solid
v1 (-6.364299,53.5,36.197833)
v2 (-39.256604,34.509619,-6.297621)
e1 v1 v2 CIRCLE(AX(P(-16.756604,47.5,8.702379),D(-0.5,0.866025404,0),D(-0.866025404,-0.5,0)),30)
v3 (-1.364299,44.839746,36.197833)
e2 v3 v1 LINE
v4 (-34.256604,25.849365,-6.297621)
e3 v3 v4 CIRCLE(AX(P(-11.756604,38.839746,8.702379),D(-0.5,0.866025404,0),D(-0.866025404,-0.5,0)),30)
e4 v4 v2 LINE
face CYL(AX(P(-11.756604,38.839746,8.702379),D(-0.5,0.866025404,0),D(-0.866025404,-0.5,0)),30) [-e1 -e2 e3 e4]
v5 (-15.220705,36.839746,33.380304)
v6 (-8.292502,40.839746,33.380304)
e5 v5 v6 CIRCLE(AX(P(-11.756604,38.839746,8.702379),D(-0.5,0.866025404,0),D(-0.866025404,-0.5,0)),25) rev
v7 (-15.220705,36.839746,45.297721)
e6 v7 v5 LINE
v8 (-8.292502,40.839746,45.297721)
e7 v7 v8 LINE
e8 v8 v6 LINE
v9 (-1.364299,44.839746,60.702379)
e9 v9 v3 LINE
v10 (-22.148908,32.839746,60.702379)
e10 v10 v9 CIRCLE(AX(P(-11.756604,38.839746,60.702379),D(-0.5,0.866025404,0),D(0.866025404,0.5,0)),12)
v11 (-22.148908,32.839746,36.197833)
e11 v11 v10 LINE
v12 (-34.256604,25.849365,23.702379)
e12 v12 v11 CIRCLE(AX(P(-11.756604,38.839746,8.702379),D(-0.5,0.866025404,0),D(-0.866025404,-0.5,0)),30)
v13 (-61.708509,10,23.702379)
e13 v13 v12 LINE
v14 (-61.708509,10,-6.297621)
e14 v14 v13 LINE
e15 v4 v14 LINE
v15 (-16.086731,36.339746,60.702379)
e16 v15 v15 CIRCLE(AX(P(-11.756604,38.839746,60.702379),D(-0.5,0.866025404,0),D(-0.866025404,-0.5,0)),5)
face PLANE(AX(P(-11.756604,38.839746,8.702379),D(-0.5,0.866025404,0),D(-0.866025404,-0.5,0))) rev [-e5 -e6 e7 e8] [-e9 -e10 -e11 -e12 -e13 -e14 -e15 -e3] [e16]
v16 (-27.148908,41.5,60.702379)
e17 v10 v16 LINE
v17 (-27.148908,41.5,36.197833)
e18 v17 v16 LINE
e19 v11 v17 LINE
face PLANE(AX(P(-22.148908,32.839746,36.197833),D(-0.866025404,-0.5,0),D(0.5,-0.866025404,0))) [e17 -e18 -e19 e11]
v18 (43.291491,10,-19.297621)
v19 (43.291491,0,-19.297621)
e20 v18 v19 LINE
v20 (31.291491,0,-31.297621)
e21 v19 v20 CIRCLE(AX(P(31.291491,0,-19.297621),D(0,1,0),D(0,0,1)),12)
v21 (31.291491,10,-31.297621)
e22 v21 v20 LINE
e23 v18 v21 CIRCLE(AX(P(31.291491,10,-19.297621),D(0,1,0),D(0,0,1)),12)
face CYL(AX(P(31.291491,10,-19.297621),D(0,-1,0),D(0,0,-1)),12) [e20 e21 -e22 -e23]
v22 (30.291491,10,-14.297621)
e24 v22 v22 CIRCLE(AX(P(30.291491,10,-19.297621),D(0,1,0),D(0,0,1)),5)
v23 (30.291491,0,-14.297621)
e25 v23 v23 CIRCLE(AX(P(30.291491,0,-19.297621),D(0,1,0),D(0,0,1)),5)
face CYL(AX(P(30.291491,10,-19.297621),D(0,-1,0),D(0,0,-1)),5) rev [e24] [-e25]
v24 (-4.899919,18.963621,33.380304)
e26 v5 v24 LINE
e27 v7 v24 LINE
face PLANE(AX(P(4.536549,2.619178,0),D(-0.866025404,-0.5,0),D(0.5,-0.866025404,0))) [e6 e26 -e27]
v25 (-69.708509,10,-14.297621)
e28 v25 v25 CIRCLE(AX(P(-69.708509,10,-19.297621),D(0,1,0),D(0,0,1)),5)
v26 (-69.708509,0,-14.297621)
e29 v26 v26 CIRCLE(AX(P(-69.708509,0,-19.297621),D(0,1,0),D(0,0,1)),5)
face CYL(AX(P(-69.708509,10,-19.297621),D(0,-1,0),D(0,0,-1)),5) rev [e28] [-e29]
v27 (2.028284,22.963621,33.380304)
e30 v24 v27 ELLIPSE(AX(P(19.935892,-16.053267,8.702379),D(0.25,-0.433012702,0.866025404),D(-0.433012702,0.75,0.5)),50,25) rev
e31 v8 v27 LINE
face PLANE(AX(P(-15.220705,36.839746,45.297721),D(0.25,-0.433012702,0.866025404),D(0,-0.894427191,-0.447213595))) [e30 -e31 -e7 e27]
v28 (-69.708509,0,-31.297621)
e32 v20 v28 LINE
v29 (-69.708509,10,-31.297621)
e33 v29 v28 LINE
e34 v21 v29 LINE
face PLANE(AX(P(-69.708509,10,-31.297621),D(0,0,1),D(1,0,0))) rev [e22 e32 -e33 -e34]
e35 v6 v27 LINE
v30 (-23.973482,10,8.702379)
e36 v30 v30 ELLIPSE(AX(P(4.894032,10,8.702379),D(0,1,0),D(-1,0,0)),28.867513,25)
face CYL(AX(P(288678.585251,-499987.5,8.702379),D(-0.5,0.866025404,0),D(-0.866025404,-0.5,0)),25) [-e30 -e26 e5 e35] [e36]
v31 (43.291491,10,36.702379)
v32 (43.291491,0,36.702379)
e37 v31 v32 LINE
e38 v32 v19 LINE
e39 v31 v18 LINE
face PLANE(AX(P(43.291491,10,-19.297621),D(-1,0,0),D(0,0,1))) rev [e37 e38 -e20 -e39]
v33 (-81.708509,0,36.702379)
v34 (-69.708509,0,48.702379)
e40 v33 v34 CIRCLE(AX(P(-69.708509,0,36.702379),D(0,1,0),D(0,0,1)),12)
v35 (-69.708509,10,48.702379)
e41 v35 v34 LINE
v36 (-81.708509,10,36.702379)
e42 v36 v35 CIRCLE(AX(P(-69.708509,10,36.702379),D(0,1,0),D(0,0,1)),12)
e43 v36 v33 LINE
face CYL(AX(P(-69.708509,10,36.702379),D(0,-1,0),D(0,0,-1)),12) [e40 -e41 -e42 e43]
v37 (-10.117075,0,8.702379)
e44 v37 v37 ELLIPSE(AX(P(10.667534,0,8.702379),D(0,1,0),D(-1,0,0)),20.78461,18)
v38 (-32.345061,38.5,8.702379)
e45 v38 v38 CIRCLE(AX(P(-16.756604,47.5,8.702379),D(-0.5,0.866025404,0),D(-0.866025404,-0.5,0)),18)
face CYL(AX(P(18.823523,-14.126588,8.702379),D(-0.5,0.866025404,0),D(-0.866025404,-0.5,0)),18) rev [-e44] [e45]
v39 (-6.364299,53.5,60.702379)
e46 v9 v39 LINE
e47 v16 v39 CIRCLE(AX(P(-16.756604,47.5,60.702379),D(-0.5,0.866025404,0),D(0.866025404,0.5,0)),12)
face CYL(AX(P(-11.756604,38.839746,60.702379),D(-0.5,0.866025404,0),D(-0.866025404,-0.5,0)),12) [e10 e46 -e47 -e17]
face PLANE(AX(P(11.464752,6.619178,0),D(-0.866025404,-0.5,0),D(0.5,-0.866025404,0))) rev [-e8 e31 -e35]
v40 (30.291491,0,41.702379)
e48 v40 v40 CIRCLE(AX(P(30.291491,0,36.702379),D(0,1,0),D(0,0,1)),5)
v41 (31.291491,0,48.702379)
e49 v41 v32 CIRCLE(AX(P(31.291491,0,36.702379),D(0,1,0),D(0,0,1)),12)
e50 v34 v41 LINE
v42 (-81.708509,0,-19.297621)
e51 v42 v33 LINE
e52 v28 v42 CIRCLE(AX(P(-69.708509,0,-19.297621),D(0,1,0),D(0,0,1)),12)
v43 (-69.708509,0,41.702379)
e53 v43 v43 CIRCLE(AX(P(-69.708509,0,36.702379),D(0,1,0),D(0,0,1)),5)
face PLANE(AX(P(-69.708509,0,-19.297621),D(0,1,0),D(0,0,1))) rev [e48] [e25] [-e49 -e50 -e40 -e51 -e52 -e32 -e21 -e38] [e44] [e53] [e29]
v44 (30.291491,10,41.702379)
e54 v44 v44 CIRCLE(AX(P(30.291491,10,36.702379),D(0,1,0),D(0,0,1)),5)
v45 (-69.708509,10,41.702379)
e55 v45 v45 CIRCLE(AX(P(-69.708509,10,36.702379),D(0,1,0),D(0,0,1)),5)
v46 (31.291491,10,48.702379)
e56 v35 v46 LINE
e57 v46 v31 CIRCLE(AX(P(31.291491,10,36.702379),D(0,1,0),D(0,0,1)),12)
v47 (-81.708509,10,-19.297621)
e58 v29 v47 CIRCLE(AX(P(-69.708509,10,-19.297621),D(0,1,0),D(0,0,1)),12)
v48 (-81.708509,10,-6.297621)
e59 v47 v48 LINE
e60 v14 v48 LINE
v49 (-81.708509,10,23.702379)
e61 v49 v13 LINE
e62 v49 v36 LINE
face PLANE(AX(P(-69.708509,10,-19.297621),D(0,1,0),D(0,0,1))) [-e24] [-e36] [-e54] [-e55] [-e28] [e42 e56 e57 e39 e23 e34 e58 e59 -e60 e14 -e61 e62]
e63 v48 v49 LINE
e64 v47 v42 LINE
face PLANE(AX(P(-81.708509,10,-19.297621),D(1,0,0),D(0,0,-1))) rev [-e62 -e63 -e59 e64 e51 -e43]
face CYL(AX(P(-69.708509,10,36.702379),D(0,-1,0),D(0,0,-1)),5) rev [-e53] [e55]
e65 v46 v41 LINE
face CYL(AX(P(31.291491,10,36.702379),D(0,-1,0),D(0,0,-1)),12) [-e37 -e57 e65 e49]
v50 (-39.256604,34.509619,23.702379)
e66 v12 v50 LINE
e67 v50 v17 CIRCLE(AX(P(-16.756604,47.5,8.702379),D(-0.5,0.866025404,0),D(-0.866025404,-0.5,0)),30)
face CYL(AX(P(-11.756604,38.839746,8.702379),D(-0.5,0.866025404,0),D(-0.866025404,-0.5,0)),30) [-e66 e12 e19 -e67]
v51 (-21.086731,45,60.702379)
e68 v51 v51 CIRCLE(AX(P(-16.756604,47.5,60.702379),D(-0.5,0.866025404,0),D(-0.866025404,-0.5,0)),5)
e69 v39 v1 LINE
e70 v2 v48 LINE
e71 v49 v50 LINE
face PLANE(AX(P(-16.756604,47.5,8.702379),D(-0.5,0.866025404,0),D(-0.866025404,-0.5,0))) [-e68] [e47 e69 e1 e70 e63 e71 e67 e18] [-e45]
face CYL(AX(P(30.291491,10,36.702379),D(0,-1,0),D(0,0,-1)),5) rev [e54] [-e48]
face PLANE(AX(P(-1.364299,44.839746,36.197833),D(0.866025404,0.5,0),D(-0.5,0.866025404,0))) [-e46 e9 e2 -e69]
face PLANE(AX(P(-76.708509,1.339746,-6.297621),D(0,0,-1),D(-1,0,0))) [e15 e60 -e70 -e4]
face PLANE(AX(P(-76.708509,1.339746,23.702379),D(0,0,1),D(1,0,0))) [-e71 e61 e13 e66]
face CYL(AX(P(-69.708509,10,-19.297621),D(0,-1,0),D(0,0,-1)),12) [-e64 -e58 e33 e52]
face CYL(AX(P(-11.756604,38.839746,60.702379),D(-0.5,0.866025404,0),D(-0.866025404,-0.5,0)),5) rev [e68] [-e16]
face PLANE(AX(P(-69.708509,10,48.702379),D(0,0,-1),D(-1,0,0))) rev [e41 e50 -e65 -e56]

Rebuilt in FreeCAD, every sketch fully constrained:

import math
import FreeCAD as App
import Part
import Sketcher
from FreeCAD import Vector
Q = App.Units.Quantity


def add_polygon(sketch, points):
    """Adds a closed chain of lines whose ends are joined by coincident constraints."""
    first, n = sketch.GeometryCount, len(points)
    for a, b in zip(points, points[1:] + points[:1]):
        sketch.addGeometry(Part.LineSegment(App.Vector(*a, 0), App.Vector(*b, 0)), False)
    for i in range(n):
        sketch.addConstraint(Sketcher.Constraint("Coincident", first + i, 2, first + (i + 1) % n, 1))

doc = App.newDocument("Part")
params = doc.addObject("Spreadsheet::Sheet", "Params")
for row, (alias, value) in enumerate([
    ("sketch1_diameter", "10 mm"),
    ("sketch1_radius", "12 mm"),
    ("sketch1_width", "101 mm"),
    ("sketch1_height", "56 mm"),
    ("pad1_length", "10 mm"),
    ("sketch2_diameter", "10 mm"),
    ("sketch2_diameter2", "36 mm"),
    ("sketch2_radius", "30 mm"),
    ("sketch2_radius2", "12 mm"),
    ("sketch2_width", "30 mm"),
    ("pad2_length", "10 mm"),
    ("sketch3_diameter", "50 mm"),
    ("sketch4_diameter", "36 mm"),
    ("pad4_length", "8 mm"),
], start=1):
    params.set(f"A{row}", alias)
    params.set(f"B{row}", "=" + value)
    params.setAlias(f"B{row}", alias)

body = doc.addObject("PartDesign::Body", "Body")

# Sketch on XZ plane
sketch1 = body.newObject("Sketcher::SketchObject", "Sketch")
sketch1.AttachmentSupport = (doc.getObject("XZ_Plane"), [""])
sketch1.MapMode = "FlatFace"
sketch1.addGeometry([
    Part.LineSegment(Vector(31, -31, 0), Vector(-70, -31, 0)),  # 0
    Part.ArcOfCircle(Part.Circle(Vector(-70, -19, 0), Vector(0, 0, 1), 12), math.radians(180), math.radians(270)),  # 1
    Part.LineSegment(Vector(-82, -19, 0), Vector(-82, 37, 0)),  # 2
    Part.ArcOfCircle(Part.Circle(Vector(-70, 37, 0), Vector(0, 0, 1), 12), math.radians(90), math.radians(180)),  # 3
    Part.LineSegment(Vector(-70, 49, 0), Vector(31, 49, 0)),  # 4
    Part.ArcOfCircle(Part.Circle(Vector(31, 37, 0), Vector(0, 0, 1), 12), math.radians(0), math.radians(90)),  # 5
    Part.LineSegment(Vector(43, 37, 0), Vector(43, -19, 0)),  # 6
    Part.ArcOfCircle(Part.Circle(Vector(31, -19, 0), Vector(0, 0, 1), 12), math.radians(-90), math.radians(0)),  # 7
    Part.Circle(Vector(30, 37, 0), Vector(0, 0, 1), 5),  # 8
    Part.Circle(Vector(-70, 37, 0), Vector(0, 0, 1), 5),  # 9
    Part.Circle(Vector(30, -19, 0), Vector(0, 0, 1), 5),  # 10
    Part.Circle(Vector(-70, -19, 0), Vector(0, 0, 1), 5),  # 11
], False)
sketch1.addConstraint([
    Sketcher.Constraint("Tangent", 0, 2, 1, 2),
    Sketcher.Constraint("Tangent", 1, 1, 2, 1),
    Sketcher.Constraint("Tangent", 2, 2, 3, 2),
    Sketcher.Constraint("Tangent", 3, 1, 4, 1),
    Sketcher.Constraint("Tangent", 4, 2, 5, 2),
    Sketcher.Constraint("Tangent", 5, 1, 6, 1),
    Sketcher.Constraint("Tangent", 6, 2, 7, 2),
    Sketcher.Constraint("Tangent", 7, 1, 0, 1),
    Sketcher.Constraint("Horizontal", 0),
    Sketcher.Constraint("Vertical", 2),
    Sketcher.Constraint("Horizontal", 4),
    Sketcher.Constraint("Vertical", 6),
    Sketcher.Constraint("Coincident", 9, 3, 3, 3),
    Sketcher.Constraint("Coincident", 11, 3, 1, 3),
    Sketcher.Constraint("Equal", 1, 3),
    Sketcher.Constraint("Equal", 3, 5),
    Sketcher.Constraint("Equal", 5, 7),
    Sketcher.Constraint("Equal", 8, 9),
    Sketcher.Constraint("Equal", 9, 10),
    Sketcher.Constraint("Equal", 10, 11),
    Sketcher.Constraint("Horizontal", 5, 3, 8, 3),
    Sketcher.Constraint("Horizontal", 7, 3, 10, 3),
    Sketcher.Constraint("Vertical", 8, 3, 10, 3),
    Sketcher.Constraint("Diameter", 8, 10.0),
    Sketcher.Constraint("Radius", 1, 12.0),
    Sketcher.Constraint("DistanceX", 0, 2, 0, 1, 101.0),
    Sketcher.Constraint("DistanceY", 2, 1, 2, 2, 56.0),
    Sketcher.Constraint("DistanceX", 8, 3, 5, 3, 1.0),
    Sketcher.Constraint("DistanceX", 1, 3, -1, 1, 69.708509),
    Sketcher.Constraint("DistanceY", 1, 3, -1, 1, 19.297621),
])
sketch1.setExpression("Constraints[23]", "Params.sketch1_diameter")
sketch1.setExpression("Constraints[24]", "Params.sketch1_radius")
sketch1.setExpression("Constraints[25]", "Params.sketch1_width")
sketch1.setExpression("Constraints[26]", "Params.sketch1_height")
pad1 = body.newObject("PartDesign::Pad", "Pad")
pad1.Profile = sketch1
pad1.setExpression("Length", "Params.pad1_length")
pad1.Reversed = True

# Sketch on an angled plane
sketch2 = body.newObject("Sketcher::SketchObject", "Sketch001")
sketch2.Placement = App.Placement(Vector(-24.757254, 42.880822, 0), App.Rotation(Vector(0, 0, 1), Vector(0.866025404, 0.5, 0), Vector(-0.5, 0.866025404, 0), "ZXY"))
sketch2.addGeometry([
    Part.LineSegment(Vector(-6, -17, 0), Vector(-6, -66, 0)),  # 0
    Part.LineSegment(Vector(-6, -66, 0), Vector(24, -66, 0)),  # 1
    Part.LineSegment(Vector(24, -66, 0), Vector(24, -17, 0)),  # 2
    Part.ArcOfCircle(Part.Circle(Vector(9, 9, 0), Vector(0, 0, 1), 30), math.radians(-60), math.radians(-24)),  # 3
    Part.LineSegment(Vector(36, -3, 0), Vector(61, -3, 0)),  # 4
    Part.ArcOfCircle(Part.Circle(Vector(61, 9, 0), Vector(0, 0, 1), 12), math.radians(-90), math.radians(90)),  # 5
    Part.LineSegment(Vector(61, 21, 0), Vector(36, 21, 0)),  # 6
    Part.ArcOfCircle(Part.Circle(Vector(9, 9, 0), Vector(0, 0, 1), 30), math.radians(24), math.radians(240)),  # 7
    Part.Circle(Vector(61, 9, 0), Vector(0, 0, 1), 5),  # 8
    Part.Circle(Vector(9, 9, 0), Vector(0, 0, 1), 18),  # 9
], False)
sketch2.addConstraint([
    Sketcher.Constraint("Coincident", 0, 2, 1, 1),
    Sketcher.Constraint("Coincident", 1, 2, 2, 1),
    Sketcher.Constraint("Coincident", 2, 2, 3, 1),
    Sketcher.Constraint("Coincident", 3, 2, 4, 1),
    Sketcher.Constraint("Tangent", 4, 2, 5, 1),
    Sketcher.Constraint("Tangent", 5, 2, 6, 1),
    Sketcher.Constraint("Coincident", 6, 2, 7, 1),
    Sketcher.Constraint("Coincident", 7, 2, 0, 1),
    Sketcher.Constraint("Vertical", 0),
    Sketcher.Constraint("Horizontal", 1),
    Sketcher.Constraint("Vertical", 2),
    Sketcher.Constraint("Horizontal", 4),
    Sketcher.Constraint("Horizontal", 6),
    Sketcher.Constraint("Coincident", 7, 3, 3, 3),
    Sketcher.Constraint("Coincident", 8, 3, 5, 3),
    Sketcher.Constraint("Coincident", 9, 3, 3, 3),
    Sketcher.Constraint("Equal", 3, 7),
    Sketcher.Constraint("Horizontal", 3, 3, 5, 3),
    Sketcher.Constraint("Horizontal", 2, 2, 7, 2),
    Sketcher.Constraint("Diameter", 8, 10.0),
    Sketcher.Constraint("Diameter", 9, 36.0),
    Sketcher.Constraint("Radius", 3, 30.0),
    Sketcher.Constraint("Radius", 5, 12.0),
    Sketcher.Constraint("DistanceX", 1, 1, 1, 2, 30.0),
    Sketcher.Constraint("DistanceX", 3, 3, 5, 3, 52.0),
    Sketcher.Constraint("DistanceY", 0, 2, 3, 3, 75.0),
    Sketcher.Constraint("DistanceX", -1, 1, 3, 3, 8.702379),
    Sketcher.Constraint("DistanceY", -1, 1, 3, 3, 9.238356),
])
sketch2.setExpression("Constraints[19]", "Params.sketch2_diameter")
sketch2.setExpression("Constraints[20]", "Params.sketch2_diameter2")
sketch2.setExpression("Constraints[21]", "Params.sketch2_radius")
sketch2.setExpression("Constraints[22]", "Params.sketch2_radius2")
sketch2.setExpression("Constraints[23]", "Params.sketch2_width")
pad2 = body.newObject("PartDesign::Pad", "Pad001")
pad2.Profile = sketch2
pad2.setExpression("Length", "Params.pad2_length")
pad2.Reversed = True

# Sketch on an angled plane
sketch3 = body.newObject("Sketcher::SketchObject", "Sketch002")
sketch3.Placement = App.Placement(Vector(-24.757254, 42.880822, 0), App.Rotation(Vector(0, 0, 1), Vector(0.866025404, 0.5, 0), Vector(-0.5, 0.866025404, 0), "ZXY"))
sketch3.addGeometry(Part.Circle(Vector(9, 9, 0), Vector(0, 0, 1), 25), False)
sketch3.addConstraint([
    Sketcher.Constraint("Diameter", 0, 50.0),
    Sketcher.Constraint("DistanceX", -1, 1, 0, 3, 8.702379),
    Sketcher.Constraint("DistanceY", -1, 1, 0, 3, 9.238356),
])
sketch3.setExpression("Constraints[0]", "Params.sketch3_diameter")
pad3 = body.newObject("PartDesign::Pad", "Pad002")
pad3.Profile = sketch3
pad3.Type = "UpToFirst"
pad3.Reversed = True

# Sketch on an angled plane
sketch4 = body.newObject("Sketcher::SketchObject", "Sketch003")
sketch4.Placement = App.Placement(Vector(-24.757254, 42.880822, 0), App.Rotation(Vector(0.866025404, 0.5, 0), Vector(0, 0, -1), Vector(-0.5, 0.866025404, 0), "ZXY"))
sketch4.addGeometry(Part.Circle(Vector(9, -9, 0), Vector(0, 0, 1), 18), False)
sketch4.addConstraint([
    Sketcher.Constraint("Diameter", 0, 36.0),
    Sketcher.Constraint("DistanceY", 0, 3, -1, 1, 8.702379),
    Sketcher.Constraint("DistanceX", -1, 1, 0, 3, 9.238356),
])
sketch4.setExpression("Constraints[0]", "Params.sketch4_diameter")
pocket1 = body.newObject("PartDesign::Pocket", "Pocket")
pocket1.Profile = sketch4
pocket1.Type = "ThroughAll"

# Sketch on an angled plane
sketch5 = body.newObject("Sketcher::SketchObject", "Sketch004")
sketch5.Placement = App.Placement(Vector(8.000651, 4.619178, 0), App.Rotation(Vector(0, 0, 1), Vector(-0.5, 0.866025404, 0), Vector(-0.866025404, -0.5, 0), "ZXY"))
add_polygon(sketch5, [(45, 40), (30, 40), (30, 14)])  # lines 0-2
sketch5.addConstraint([
    Sketcher.Constraint("Horizontal", 0),
    Sketcher.Constraint("Angle", 2, Q("60 deg")),
    Sketcher.Constraint("DistanceY", -1, 1, 1, 2, 13.8362),
    Sketcher.Constraint("DistanceX", 0, 2, 0, 1, 15.285797),
    Sketcher.Constraint("DistanceY", -1, 1, 0, 2, 39.514508),
    Sketcher.Constraint("DistanceX", -1, 1, 2, 2, 45.297721),
])
pad4 = body.newObject("PartDesign::Pad", "Pad003")
pad4.Profile = sketch5
pad4.setExpression("Length", "Params.pad4_length")
pad4.Midplane = True

doc.recompute()
